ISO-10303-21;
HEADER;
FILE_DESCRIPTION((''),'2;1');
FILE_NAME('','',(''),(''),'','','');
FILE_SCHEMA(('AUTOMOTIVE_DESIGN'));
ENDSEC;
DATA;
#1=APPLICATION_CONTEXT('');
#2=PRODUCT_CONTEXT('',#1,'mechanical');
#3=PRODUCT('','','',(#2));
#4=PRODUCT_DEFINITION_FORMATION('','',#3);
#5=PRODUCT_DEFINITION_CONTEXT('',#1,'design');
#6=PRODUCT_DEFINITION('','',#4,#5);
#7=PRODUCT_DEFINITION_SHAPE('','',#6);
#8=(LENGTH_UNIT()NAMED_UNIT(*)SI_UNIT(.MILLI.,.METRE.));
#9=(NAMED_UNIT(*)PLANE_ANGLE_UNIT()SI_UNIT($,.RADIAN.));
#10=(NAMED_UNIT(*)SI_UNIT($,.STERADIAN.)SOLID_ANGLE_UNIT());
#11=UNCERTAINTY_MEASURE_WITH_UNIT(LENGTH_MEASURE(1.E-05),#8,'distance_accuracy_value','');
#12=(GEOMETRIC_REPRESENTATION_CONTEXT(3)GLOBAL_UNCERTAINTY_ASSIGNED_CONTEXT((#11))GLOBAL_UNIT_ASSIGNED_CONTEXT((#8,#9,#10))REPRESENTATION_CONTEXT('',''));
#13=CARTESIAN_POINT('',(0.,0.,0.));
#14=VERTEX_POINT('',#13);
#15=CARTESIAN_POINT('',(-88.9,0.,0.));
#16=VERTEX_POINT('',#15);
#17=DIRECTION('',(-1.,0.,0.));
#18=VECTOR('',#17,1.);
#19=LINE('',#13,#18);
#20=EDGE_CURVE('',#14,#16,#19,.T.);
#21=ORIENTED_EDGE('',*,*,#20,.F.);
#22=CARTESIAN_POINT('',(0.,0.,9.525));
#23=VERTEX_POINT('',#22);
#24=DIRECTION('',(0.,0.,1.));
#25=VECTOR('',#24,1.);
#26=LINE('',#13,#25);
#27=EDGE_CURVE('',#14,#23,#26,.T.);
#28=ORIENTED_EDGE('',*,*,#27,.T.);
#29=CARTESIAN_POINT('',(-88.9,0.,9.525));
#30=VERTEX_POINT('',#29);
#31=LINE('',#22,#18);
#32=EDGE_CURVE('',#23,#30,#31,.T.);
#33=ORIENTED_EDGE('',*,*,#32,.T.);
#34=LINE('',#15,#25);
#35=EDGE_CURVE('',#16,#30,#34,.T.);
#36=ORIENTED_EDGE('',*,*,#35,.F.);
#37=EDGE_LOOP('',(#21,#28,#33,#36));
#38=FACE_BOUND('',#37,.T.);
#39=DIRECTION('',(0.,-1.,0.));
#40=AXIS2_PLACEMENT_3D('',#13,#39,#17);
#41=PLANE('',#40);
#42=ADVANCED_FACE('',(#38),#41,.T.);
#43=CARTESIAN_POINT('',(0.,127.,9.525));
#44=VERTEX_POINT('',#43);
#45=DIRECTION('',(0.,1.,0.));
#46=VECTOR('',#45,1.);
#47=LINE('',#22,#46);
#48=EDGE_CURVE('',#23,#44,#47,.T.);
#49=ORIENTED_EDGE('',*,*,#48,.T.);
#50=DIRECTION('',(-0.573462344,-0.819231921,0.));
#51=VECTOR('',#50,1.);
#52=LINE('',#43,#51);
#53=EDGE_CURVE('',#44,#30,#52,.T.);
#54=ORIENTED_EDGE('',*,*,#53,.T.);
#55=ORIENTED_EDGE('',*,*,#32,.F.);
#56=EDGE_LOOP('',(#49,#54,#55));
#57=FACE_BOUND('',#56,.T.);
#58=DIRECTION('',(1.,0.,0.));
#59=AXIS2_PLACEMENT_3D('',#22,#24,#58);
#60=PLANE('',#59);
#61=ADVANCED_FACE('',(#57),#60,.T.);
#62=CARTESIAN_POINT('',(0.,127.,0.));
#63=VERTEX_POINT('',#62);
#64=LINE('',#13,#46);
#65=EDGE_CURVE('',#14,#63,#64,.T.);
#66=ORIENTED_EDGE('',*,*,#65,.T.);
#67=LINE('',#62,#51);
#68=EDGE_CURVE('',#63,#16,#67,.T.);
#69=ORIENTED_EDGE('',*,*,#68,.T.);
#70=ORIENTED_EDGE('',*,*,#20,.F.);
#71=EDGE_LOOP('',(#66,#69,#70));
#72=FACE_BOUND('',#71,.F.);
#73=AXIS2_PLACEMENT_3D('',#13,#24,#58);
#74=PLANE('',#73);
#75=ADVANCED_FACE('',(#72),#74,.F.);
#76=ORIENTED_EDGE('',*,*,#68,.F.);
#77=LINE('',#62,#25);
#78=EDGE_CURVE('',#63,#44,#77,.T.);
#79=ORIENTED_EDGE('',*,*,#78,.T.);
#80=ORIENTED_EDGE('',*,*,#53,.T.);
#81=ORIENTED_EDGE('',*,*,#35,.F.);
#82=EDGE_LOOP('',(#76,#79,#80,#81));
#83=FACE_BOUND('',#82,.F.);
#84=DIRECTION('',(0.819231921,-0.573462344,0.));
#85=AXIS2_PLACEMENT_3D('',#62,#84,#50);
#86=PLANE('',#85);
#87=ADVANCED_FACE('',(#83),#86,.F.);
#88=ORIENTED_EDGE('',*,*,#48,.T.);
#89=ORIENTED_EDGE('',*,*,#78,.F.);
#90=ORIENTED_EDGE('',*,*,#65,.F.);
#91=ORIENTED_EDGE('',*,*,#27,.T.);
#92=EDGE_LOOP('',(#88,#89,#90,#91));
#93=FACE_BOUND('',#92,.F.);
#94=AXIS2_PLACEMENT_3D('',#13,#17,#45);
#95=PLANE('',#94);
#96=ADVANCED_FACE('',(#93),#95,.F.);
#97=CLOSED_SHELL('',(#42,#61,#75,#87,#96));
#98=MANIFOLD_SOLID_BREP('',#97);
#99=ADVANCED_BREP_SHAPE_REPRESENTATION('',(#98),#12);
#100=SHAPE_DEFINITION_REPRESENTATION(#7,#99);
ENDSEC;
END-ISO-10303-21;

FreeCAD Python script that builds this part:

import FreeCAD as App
import Part
import Sketcher
from FreeCAD import Vector
Q = App.Units.Quantity

doc = App.newDocument("Part")
params = doc.addObject("Spreadsheet::Sheet", "Params")
for row, (alias, value) in enumerate([
    ("sketch1_height", "5 in"),
    ("sketch1_width", "3.5 in"),
    ("pad1_length", "0.375 in"),
], start=1):
    params.set(f"A{row}", alias)
    params.set(f"B{row}", "=" + value)
    params.setAlias(f"B{row}", alias)

body = doc.addObject("PartDesign::Body", "Body")

sketch1 = body.newObject("Sketcher::SketchObject", "Sketch")
sketch1.AttachmentSupport = (doc.getObject("XY_Plane"), [""])
sketch1.MapMode = "FlatFace"
sketch1.addGeometry(Part.LineSegment(Vector(-89, 0, 0), Vector(0, 0, 0)), False)
sketch1.addGeometry(Part.LineSegment(Vector(0, 0, 0), Vector(0, 127, 0)), False)
sketch1.addGeometry(Part.LineSegment(Vector(0, 127, 0), Vector(-89, 0, 0)), False)
sketch1.addConstraint(Sketcher.Constraint("Coincident", 0, 2, 1, 1))
sketch1.addConstraint(Sketcher.Constraint("Coincident", 1, 2, 2, 1))
sketch1.addConstraint(Sketcher.Constraint("Coincident", 2, 2, 0, 1))
sketch1.addConstraint(Sketcher.Constraint("Horizontal", 0))
sketch1.addConstraint(Sketcher.Constraint("Vertical", 1))
sketch1.addConstraint(Sketcher.Constraint("Coincident", 0, 2, -1, 1))
sketch1.addConstraint(Sketcher.Constraint("DistanceY", 1, 1, 1, 2, Q("5 in")))
sketch1.addConstraint(Sketcher.Constraint("DistanceX", 0, 1, 0, 2, Q("3.5 in")))
sketch1.setExpression("Constraints[6]", "Params.sketch1_height")
sketch1.setExpression("Constraints[7]", "Params.sketch1_width")
pad1 = body.newObject("PartDesign::Pad", "Pad")
pad1.Profile = sketch1
pad1.setExpression("Length", "Params.pad1_length")

doc.recompute()
